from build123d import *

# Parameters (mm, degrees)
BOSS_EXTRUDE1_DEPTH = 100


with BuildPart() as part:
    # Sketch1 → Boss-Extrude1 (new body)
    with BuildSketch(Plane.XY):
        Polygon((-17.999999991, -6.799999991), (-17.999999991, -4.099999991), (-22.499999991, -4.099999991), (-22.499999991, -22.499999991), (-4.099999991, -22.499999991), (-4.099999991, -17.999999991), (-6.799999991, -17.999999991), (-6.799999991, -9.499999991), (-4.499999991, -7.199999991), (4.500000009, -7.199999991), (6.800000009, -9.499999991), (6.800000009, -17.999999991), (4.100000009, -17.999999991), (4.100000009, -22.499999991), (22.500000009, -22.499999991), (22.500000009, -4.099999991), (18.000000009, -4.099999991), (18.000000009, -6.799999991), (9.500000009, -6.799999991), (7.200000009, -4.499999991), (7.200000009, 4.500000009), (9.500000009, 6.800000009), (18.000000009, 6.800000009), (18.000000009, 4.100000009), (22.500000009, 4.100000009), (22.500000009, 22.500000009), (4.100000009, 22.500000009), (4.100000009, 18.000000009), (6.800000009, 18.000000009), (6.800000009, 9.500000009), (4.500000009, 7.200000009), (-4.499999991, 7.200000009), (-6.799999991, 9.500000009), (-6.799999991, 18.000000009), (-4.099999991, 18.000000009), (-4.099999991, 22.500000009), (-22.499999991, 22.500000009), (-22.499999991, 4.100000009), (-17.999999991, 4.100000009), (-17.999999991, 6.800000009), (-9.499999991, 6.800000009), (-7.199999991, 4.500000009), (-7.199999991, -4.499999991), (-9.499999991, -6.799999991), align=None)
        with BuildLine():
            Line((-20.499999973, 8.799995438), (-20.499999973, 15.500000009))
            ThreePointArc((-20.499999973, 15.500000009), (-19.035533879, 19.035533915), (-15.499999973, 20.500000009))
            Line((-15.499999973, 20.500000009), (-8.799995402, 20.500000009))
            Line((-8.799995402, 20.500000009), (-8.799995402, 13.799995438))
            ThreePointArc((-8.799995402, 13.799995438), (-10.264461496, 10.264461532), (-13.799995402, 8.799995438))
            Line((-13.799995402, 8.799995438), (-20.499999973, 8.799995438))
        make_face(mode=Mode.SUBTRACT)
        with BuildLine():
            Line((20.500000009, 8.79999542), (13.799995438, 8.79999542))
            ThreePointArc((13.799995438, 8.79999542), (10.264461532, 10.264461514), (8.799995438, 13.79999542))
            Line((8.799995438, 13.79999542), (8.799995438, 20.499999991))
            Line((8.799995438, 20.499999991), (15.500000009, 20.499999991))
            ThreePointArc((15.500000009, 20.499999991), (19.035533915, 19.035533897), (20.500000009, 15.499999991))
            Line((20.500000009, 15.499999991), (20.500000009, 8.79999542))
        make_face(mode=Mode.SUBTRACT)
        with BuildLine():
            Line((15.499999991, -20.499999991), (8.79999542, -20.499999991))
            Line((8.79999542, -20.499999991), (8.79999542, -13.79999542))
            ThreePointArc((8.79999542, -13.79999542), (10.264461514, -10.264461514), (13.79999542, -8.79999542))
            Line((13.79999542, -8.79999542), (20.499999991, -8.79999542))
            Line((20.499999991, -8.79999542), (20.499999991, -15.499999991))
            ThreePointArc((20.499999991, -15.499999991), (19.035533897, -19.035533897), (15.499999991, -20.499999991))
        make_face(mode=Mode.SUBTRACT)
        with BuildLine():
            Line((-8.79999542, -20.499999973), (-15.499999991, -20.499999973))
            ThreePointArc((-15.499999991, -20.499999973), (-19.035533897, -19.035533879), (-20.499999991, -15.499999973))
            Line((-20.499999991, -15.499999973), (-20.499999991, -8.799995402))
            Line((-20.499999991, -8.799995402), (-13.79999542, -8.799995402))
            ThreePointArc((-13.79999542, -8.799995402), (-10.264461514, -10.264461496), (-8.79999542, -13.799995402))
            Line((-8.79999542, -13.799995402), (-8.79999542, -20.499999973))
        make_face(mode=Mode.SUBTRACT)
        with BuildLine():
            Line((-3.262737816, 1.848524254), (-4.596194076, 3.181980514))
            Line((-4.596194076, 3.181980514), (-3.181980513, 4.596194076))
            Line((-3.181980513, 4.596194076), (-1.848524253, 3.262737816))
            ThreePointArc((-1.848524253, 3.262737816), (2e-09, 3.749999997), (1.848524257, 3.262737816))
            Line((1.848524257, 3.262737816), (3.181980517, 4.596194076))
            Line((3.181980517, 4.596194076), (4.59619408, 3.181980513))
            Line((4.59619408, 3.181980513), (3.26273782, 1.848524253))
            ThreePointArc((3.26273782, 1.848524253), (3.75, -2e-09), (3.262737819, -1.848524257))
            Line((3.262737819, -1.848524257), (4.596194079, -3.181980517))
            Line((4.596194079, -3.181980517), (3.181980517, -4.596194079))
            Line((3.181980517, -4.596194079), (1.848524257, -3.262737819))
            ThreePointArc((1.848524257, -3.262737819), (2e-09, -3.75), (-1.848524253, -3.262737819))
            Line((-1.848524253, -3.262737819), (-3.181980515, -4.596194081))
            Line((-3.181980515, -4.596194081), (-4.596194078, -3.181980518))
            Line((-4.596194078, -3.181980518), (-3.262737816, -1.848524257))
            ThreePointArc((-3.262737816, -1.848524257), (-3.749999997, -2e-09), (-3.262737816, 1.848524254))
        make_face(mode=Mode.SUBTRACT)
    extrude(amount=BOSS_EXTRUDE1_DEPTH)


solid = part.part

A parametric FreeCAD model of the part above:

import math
import FreeCAD as App
import Part
import Sketcher
Q = App.Units.Quantity

doc = App.newDocument("Part")
params = doc.addObject("Spreadsheet::Sheet", "Params")
for row, (alias, value) in enumerate([
    ("sketch1_radius", "5 mm"),
    ("sketch1_width", "9 mm"),
    ("sketch1_radius2", "3.75 mm"),
    ("sketch1_length", "2 mm"),
    ("sketch1_width2", "4.5 mm"),
    ("pad1_length", "100 mm"),
], start=1):
    params.set(f"A{row}", alias)
    params.set(f"B{row}", "=" + value)
    params.setAlias(f"B{row}", alias)

body = doc.addObject("PartDesign::Body", "Body")

sketch1 = body.newObject("Sketcher::SketchObject", "Sketch")
sketch1.AttachmentSupport = (doc.getObject("XY_Plane"), [""])
sketch1.MapMode = "FlatFace"
sketch1.addGeometry([
    Part.LineSegment(App.Vector(-18, -6.8, 0), App.Vector(-18, -4.1, 0)),
    Part.LineSegment(App.Vector(-18, -4.1, 0), App.Vector(-22.5, -4.1, 0)),
    Part.LineSegment(App.Vector(-22.5, -4.1, 0), App.Vector(-22.5, -22.5, 0)),
    Part.LineSegment(App.Vector(-22.5, -22.5, 0), App.Vector(-4.1, -22.5, 0)),
    Part.LineSegment(App.Vector(-4.1, -22.5, 0), App.Vector(-4.1, -18, 0)),
    Part.LineSegment(App.Vector(-4.1, -18, 0), App.Vector(-6.8, -18, 0)),
    Part.LineSegment(App.Vector(-6.8, -18, 0), App.Vector(-6.8, -9.5, 0)),
    Part.LineSegment(App.Vector(-6.8, -9.5, 0), App.Vector(-4.5, -7.2, 0)),
    Part.LineSegment(App.Vector(-4.5, -7.2, 0), App.Vector(4.5, -7.2, 0)),
    Part.LineSegment(App.Vector(4.5, -7.2, 0), App.Vector(6.8, -9.5, 0)),
    Part.LineSegment(App.Vector(6.8, -9.5, 0), App.Vector(6.8, -18, 0)),
    Part.LineSegment(App.Vector(6.8, -18, 0), App.Vector(4.1, -18, 0)),
    Part.LineSegment(App.Vector(4.1, -18, 0), App.Vector(4.1, -22.5, 0)),
    Part.LineSegment(App.Vector(4.1, -22.5, 0), App.Vector(22.5, -22.5, 0)),
    Part.LineSegment(App.Vector(22.5, -22.5, 0), App.Vector(22.5, -4.1, 0)),
    Part.LineSegment(App.Vector(22.5, -4.1, 0), App.Vector(18, -4.1, 0)),
    Part.LineSegment(App.Vector(18, -4.1, 0), App.Vector(18, -6.8, 0)),
    Part.LineSegment(App.Vector(18, -6.8, 0), App.Vector(9.5, -6.8, 0)),
    Part.LineSegment(App.Vector(9.5, -6.8, 0), App.Vector(7.2, -4.5, 0)),
    Part.LineSegment(App.Vector(7.2, -4.5, 0), App.Vector(7.2, 4.5, 0)),
    Part.LineSegment(App.Vector(7.2, 4.5, 0), App.Vector(9.5, 6.8, 0)),
    Part.LineSegment(App.Vector(9.5, 6.8, 0), App.Vector(18, 6.8, 0)),
    Part.LineSegment(App.Vector(18, 6.8, 0), App.Vector(18, 4.1, 0)),
    Part.LineSegment(App.Vector(18, 4.1, 0), App.Vector(22.5, 4.1, 0)),
    Part.LineSegment(App.Vector(22.5, 4.1, 0), App.Vector(22.5, 22.5, 0)),
    Part.LineSegment(App.Vector(22.5, 22.5, 0), App.Vector(4.1, 22.5, 0)),
    Part.LineSegment(App.Vector(4.1, 22.5, 0), App.Vector(4.1, 18, 0)),
    Part.LineSegment(App.Vector(4.1, 18, 0), App.Vector(6.8, 18, 0)),
    Part.LineSegment(App.Vector(6.8, 18, 0), App.Vector(6.8, 9.5, 0)),
    Part.LineSegment(App.Vector(6.8, 9.5, 0), App.Vector(4.5, 7.2, 0)),
    Part.LineSegment(App.Vector(4.5, 7.2, 0), App.Vector(-4.5, 7.2, 0)),
    Part.LineSegment(App.Vector(-4.5, 7.2, 0), App.Vector(-6.8, 9.5, 0)),
    Part.LineSegment(App.Vector(-6.8, 9.5, 0), App.Vector(-6.8, 18, 0)),
    Part.LineSegment(App.Vector(-6.8, 18, 0), App.Vector(-4.1, 18, 0)),
    Part.LineSegment(App.Vector(-4.1, 18, 0), App.Vector(-4.1, 22.5, 0)),
    Part.LineSegment(App.Vector(-4.1, 22.5, 0), App.Vector(-22.5, 22.5, 0)),
    Part.LineSegment(App.Vector(-22.5, 22.5, 0), App.Vector(-22.5, 4.1, 0)),
    Part.LineSegment(App.Vector(-22.5, 4.1, 0), App.Vector(-18, 4.1, 0)),
    Part.LineSegment(App.Vector(-18, 4.1, 0), App.Vector(-18, 6.8, 0)),
    Part.LineSegment(App.Vector(-18, 6.8, 0), App.Vector(-9.5, 6.8, 0)),
    Part.LineSegment(App.Vector(-9.5, 6.8, 0), App.Vector(-7.2, 4.5, 0)),
    Part.LineSegment(App.Vector(-7.2, 4.5, 0), App.Vector(-7.2, -4.5, 0)),
    Part.LineSegment(App.Vector(-7.2, -4.5, 0), App.Vector(-9.5, -6.8, 0)),
    Part.LineSegment(App.Vector(-9.5, -6.8, 0), App.Vector(-18, -6.8, 0)),
    Part.LineSegment(App.Vector(-8.799995, -13.799995, 0), App.Vector(-8.799995, -20.5, 0)),
    Part.LineSegment(App.Vector(-8.799995, -20.5, 0), App.Vector(-15.5, -20.5, 0)),
    Part.ArcOfCircle(Part.Circle(App.Vector(-15.5, -15.5, 0), App.Vector(0, 0, 1), 5), math.radians(180), math.radians(270)),
    Part.LineSegment(App.Vector(-20.5, -15.5, 0), App.Vector(-20.5, -8.799995, 0)),
    Part.LineSegment(App.Vector(-20.5, -8.799995, 0), App.Vector(-13.799995, -8.799995, 0)),
    Part.ArcOfCircle(Part.Circle(App.Vector(-13.799995, -13.799995, 0), App.Vector(0, 0, 1), 5), math.radians(0), math.radians(90)),
    Part.ArcOfCircle(Part.Circle(App.Vector(0, 0, 0), App.Vector(0, 0, 1), 3.75), math.radians(150.46601), math.radians(209.53399)),
    Part.LineSegment(App.Vector(-3.262738, 1.848524, 0), App.Vector(-4.596194, 3.181981, 0)),
    Part.LineSegment(App.Vector(-4.596194, 3.181981, 0), App.Vector(-3.181981, 4.596194, 0)),
    Part.LineSegment(App.Vector(-3.181981, 4.596194, 0), App.Vector(-1.848524, 3.262738, 0)),
    Part.ArcOfCircle(Part.Circle(App.Vector(0, 0, 0), App.Vector(0, 0, 1), 3.75), math.radians(60.46601), math.radians(119.53399)),
    Part.LineSegment(App.Vector(1.848524, 3.262738, 0), App.Vector(3.181981, 4.596194, 0)),
    Part.LineSegment(App.Vector(3.181981, 4.596194, 0), App.Vector(4.596194, 3.181981, 0)),
    Part.LineSegment(App.Vector(4.596194, 3.181981, 0), App.Vector(3.262738, 1.848524, 0)),
    Part.ArcOfCircle(Part.Circle(App.Vector(0, 0, 0), App.Vector(0, 0, 1), 3.75), math.radians(-29.53399), math.radians(29.53399)),
    Part.LineSegment(App.Vector(3.262738, -1.848524, 0), App.Vector(4.596194, -3.181981, 0)),
    Part.LineSegment(App.Vector(4.596194, -3.181981, 0), App.Vector(3.181981, -4.596194, 0)),
    Part.LineSegment(App.Vector(3.181981, -4.596194, 0), App.Vector(1.848524, -3.262738, 0)),
    Part.ArcOfCircle(Part.Circle(App.Vector(0, 0, 0), App.Vector(0, 0, 1), 3.75), math.radians(-119.53399), math.radians(-60.46601)),
    Part.LineSegment(App.Vector(-1.848524, -3.262738, 0), App.Vector(-3.181981, -4.596194, 0)),
    Part.LineSegment(App.Vector(-3.181981, -4.596194, 0), App.Vector(-4.596194, -3.181981, 0)),
    Part.LineSegment(App.Vector(-4.596194, -3.181981, 0), App.Vector(-3.262738, -1.848524, 0)),
    Part.ArcOfCircle(Part.Circle(App.Vector(15.5, -15.5, 0), App.Vector(0, 0, 1), 5), math.radians(-90), math.radians(0)),
    Part.LineSegment(App.Vector(15.5, -20.5, 0), App.Vector(8.799995, -20.5, 0)),
    Part.LineSegment(App.Vector(8.799995, -20.5, 0), App.Vector(8.799995, -13.799995, 0)),
    Part.ArcOfCircle(Part.Circle(App.Vector(13.799995, -13.799995, 0), App.Vector(0, 0, 1), 5), math.radians(90), math.radians(180)),
    Part.LineSegment(App.Vector(13.799995, -8.799995, 0), App.Vector(20.5, -8.799995, 0)),
    Part.LineSegment(App.Vector(20.5, -8.799995, 0), App.Vector(20.5, -15.5, 0)),
    Part.LineSegment(App.Vector(-13.799995, 8.799995, 0), App.Vector(-20.5, 8.799995, 0)),
    Part.LineSegment(App.Vector(-20.5, 8.799995, 0), App.Vector(-20.5, 15.5, 0)),
    Part.ArcOfCircle(Part.Circle(App.Vector(-15.5, 15.5, 0), App.Vector(0, 0, 1), 5), math.radians(90), math.radians(180)),
    Part.LineSegment(App.Vector(-15.5, 20.5, 0), App.Vector(-8.799995, 20.5, 0)),
    Part.LineSegment(App.Vector(-8.799995, 20.5, 0), App.Vector(-8.799995, 13.799995, 0)),
    Part.ArcOfCircle(Part.Circle(App.Vector(-13.799995, 13.799995, 0), App.Vector(0, 0, 1), 5), math.radians(-90), math.radians(0)),
    Part.LineSegment(App.Vector(20.5, 15.5, 0), App.Vector(20.5, 8.799995, 0)),
    Part.LineSegment(App.Vector(20.5, 8.799995, 0), App.Vector(13.799995, 8.799995, 0)),
    Part.ArcOfCircle(Part.Circle(App.Vector(13.799995, 13.799995, 0), App.Vector(0, 0, 1), 5), math.radians(180), math.radians(270)),
    Part.LineSegment(App.Vector(8.799995, 13.799995, 0), App.Vector(8.799995, 20.5, 0)),
    Part.LineSegment(App.Vector(8.799995, 20.5, 0), App.Vector(15.5, 20.5, 0)),
    Part.ArcOfCircle(Part.Circle(App.Vector(15.5, 15.5, 0), App.Vector(0, 0, 1), 5), math.radians(0), math.radians(90)),
], False)
sketch1.addConstraint([
    Sketcher.Constraint("Coincident", 0, 2, 1, 1),
    Sketcher.Constraint("Coincident", 1, 2, 2, 1),
    Sketcher.Constraint("Coincident", 2, 2, 3, 1),
    Sketcher.Constraint("Coincident", 3, 2, 4, 1),
    Sketcher.Constraint("Coincident", 4, 2, 5, 1),
    Sketcher.Constraint("Coincident", 5, 2, 6, 1),
    Sketcher.Constraint("Coincident", 6, 2, 7, 1),
    Sketcher.Constraint("Coincident", 7, 2, 8, 1),
    Sketcher.Constraint("Coincident", 8, 2, 9, 1),
    Sketcher.Constraint("Coincident", 9, 2, 10, 1),
    Sketcher.Constraint("Coincident", 10, 2, 11, 1),
    Sketcher.Constraint("Coincident", 11, 2, 12, 1),
    Sketcher.Constraint("Coincident", 12, 2, 13, 1),
    Sketcher.Constraint("Coincident", 13, 2, 14, 1),
    Sketcher.Constraint("Coincident", 14, 2, 15, 1),
    Sketcher.Constraint("Coincident", 15, 2, 16, 1),
    Sketcher.Constraint("Coincident", 16, 2, 17, 1),
    Sketcher.Constraint("Coincident", 17, 2, 18, 1),
    Sketcher.Constraint("Coincident", 18, 2, 19, 1),
    Sketcher.Constraint("Coincident", 19, 2, 20, 1),
    Sketcher.Constraint("Coincident", 20, 2, 21, 1),
    Sketcher.Constraint("Coincident", 21, 2, 22, 1),
    Sketcher.Constraint("Coincident", 22, 2, 23, 1),
    Sketcher.Constraint("Coincident", 23, 2, 24, 1),
    Sketcher.Constraint("Coincident", 24, 2, 25, 1),
    Sketcher.Constraint("Coincident", 25, 2, 26, 1),
    Sketcher.Constraint("Coincident", 26, 2, 27, 1),
    Sketcher.Constraint("Coincident", 27, 2, 28, 1),
    Sketcher.Constraint("Coincident", 28, 2, 29, 1),
    Sketcher.Constraint("Coincident", 29, 2, 30, 1),
    Sketcher.Constraint("Coincident", 30, 2, 31, 1),
    Sketcher.Constraint("Coincident", 31, 2, 32, 1),
    Sketcher.Constraint("Coincident", 32, 2, 33, 1),
    Sketcher.Constraint("Coincident", 33, 2, 34, 1),
    Sketcher.Constraint("Coincident", 34, 2, 35, 1),
    Sketcher.Constraint("Coincident", 35, 2, 36, 1),
    Sketcher.Constraint("Coincident", 36, 2, 37, 1),
    Sketcher.Constraint("Coincident", 37, 2, 38, 1),
    Sketcher.Constraint("Coincident", 38, 2, 39, 1),
    Sketcher.Constraint("Coincident", 39, 2, 40, 1),
    Sketcher.Constraint("Coincident", 40, 2, 41, 1),
    Sketcher.Constraint("Coincident", 41, 2, 42, 1),
    Sketcher.Constraint("Coincident", 42, 2, 43, 1),
    Sketcher.Constraint("Coincident", 43, 2, 0, 1),
    Sketcher.Constraint("Coincident", 44, 2, 45, 1),
    Sketcher.Constraint("Tangent", 45, 2, 46, 2),
    Sketcher.Constraint("Tangent", 46, 1, 47, 1),
    Sketcher.Constraint("Coincident", 47, 2, 48, 1),
    Sketcher.Constraint("Tangent", 48, 2, 49, 2),
    Sketcher.Constraint("Tangent", 49, 1, 44, 1),
    Sketcher.Constraint("Coincident", 50, 1, 51, 1),
    Sketcher.Constraint("Coincident", 51, 2, 52, 1),
    Sketcher.Constraint("Coincident", 52, 2, 53, 1),
    Sketcher.Constraint("Coincident", 53, 2, 54, 2),
    Sketcher.Constraint("Coincident", 54, 1, 55, 1),
    Sketcher.Constraint("Coincident", 55, 2, 56, 1),
    Sketcher.Constraint("Coincident", 56, 2, 57, 1),
    Sketcher.Constraint("Coincident", 57, 2, 58, 2),
    Sketcher.Constraint("Coincident", 58, 1, 59, 1),
    Sketcher.Constraint("Coincident", 59, 2, 60, 1),
    Sketcher.Constraint("Coincident", 60, 2, 61, 1),
    Sketcher.Constraint("Coincident", 61, 2, 62, 2),
    Sketcher.Constraint("Coincident", 62, 1, 63, 1),
    Sketcher.Constraint("Coincident", 63, 2, 64, 1),
    Sketcher.Constraint("Coincident", 64, 2, 65, 1),
    Sketcher.Constraint("Coincident", 65, 2, 50, 2),
    Sketcher.Constraint("Tangent", 66, 1, 67, 1),
    Sketcher.Constraint("Coincident", 67, 2, 68, 1),
    Sketcher.Constraint("Tangent", 68, 2, 69, 2),
    Sketcher.Constraint("Tangent", 69, 1, 70, 1),
    Sketcher.Constraint("Coincident", 70, 2, 71, 1),
    Sketcher.Constraint("Tangent", 71, 2, 66, 2),
    Sketcher.Constraint("Coincident", 72, 2, 73, 1),
    Sketcher.Constraint("Tangent", 73, 2, 74, 2),
    Sketcher.Constraint("Tangent", 74, 1, 75, 1),
    Sketcher.Constraint("Coincident", 75, 2, 76, 1),
    Sketcher.Constraint("Tangent", 76, 2, 77, 2),
    Sketcher.Constraint("Tangent", 77, 1, 72, 1),
    Sketcher.Constraint("Coincident", 78, 2, 79, 1),
    Sketcher.Constraint("Tangent", 79, 2, 80, 2),
    Sketcher.Constraint("Tangent", 80, 1, 81, 1),
    Sketcher.Constraint("Coincident", 81, 2, 82, 1),
    Sketcher.Constraint("Tangent", 82, 2, 83, 2),
    Sketcher.Constraint("Tangent", 83, 1, 78, 1),
    Sketcher.Constraint("Vertical", 0),
    Sketcher.Constraint("Horizontal", 1),
    Sketcher.Constraint("Vertical", 2),
    Sketcher.Constraint("Horizontal", 3),
    Sketcher.Constraint("Vertical", 4),
    Sketcher.Constraint("Horizontal", 5),
    Sketcher.Constraint("Vertical", 6),
    Sketcher.Constraint("Horizontal", 8),
    Sketcher.Constraint("Vertical", 10),
    Sketcher.Constraint("Horizontal", 11),
    Sketcher.Constraint("Vertical", 12),
    Sketcher.Constraint("Horizontal", 13),
    Sketcher.Constraint("Vertical", 14),
    Sketcher.Constraint("Horizontal", 15),
    Sketcher.Constraint("Vertical", 16),
    Sketcher.Constraint("Horizontal", 17),
    Sketcher.Constraint("Vertical", 19),
    Sketcher.Constraint("Horizontal", 21),
    Sketcher.Constraint("Vertical", 22),
    Sketcher.Constraint("Horizontal", 23),
    Sketcher.Constraint("Vertical", 24),
    Sketcher.Constraint("Horizontal", 25),
    Sketcher.Constraint("Vertical", 26),
    Sketcher.Constraint("Horizontal", 27),
    Sketcher.Constraint("Vertical", 28),
    Sketcher.Constraint("Horizontal", 30),
    Sketcher.Constraint("Vertical", 32),
    Sketcher.Constraint("Horizontal", 33),
    Sketcher.Constraint("Vertical", 34),
    Sketcher.Constraint("Horizontal", 35),
    Sketcher.Constraint("Vertical", 36),
    Sketcher.Constraint("Horizontal", 37),
    Sketcher.Constraint("Vertical", 38),
    Sketcher.Constraint("Horizontal", 39),
    Sketcher.Constraint("Vertical", 41),
    Sketcher.Constraint("Horizontal", 43),
    Sketcher.Constraint("Vertical", 44),
    Sketcher.Constraint("Horizontal", 45),
    Sketcher.Constraint("Vertical", 47),
    Sketcher.Constraint("Horizontal", 48),
    Sketcher.Constraint("Horizontal", 67),
    Sketcher.Constraint("Vertical", 68),
    Sketcher.Constraint("Horizontal", 70),
    Sketcher.Constraint("Vertical", 71),
    Sketcher.Constraint("Horizontal", 72),
    Sketcher.Constraint("Vertical", 73),
    Sketcher.Constraint("Horizontal", 75),
    Sketcher.Constraint("Vertical", 76),
    Sketcher.Constraint("Vertical", 78),
    Sketcher.Constraint("Horizontal", 79),
    Sketcher.Constraint("Vertical", 81),
    Sketcher.Constraint("Horizontal", 82),
    Sketcher.Constraint("Coincident", 50, 3, -1, 1),
    Sketcher.Constraint("Coincident", 54, 3, -1, 1),
    Sketcher.Constraint("Coincident", 58, 3, -1, 1),
    Sketcher.Constraint("Coincident", 62, 3, -1, 1),
    Sketcher.Constraint("Equal", 46, 49),
    Sketcher.Constraint("Equal", 50, 54),
    Sketcher.Constraint("Equal", 54, 58),
    Sketcher.Constraint("Equal", 58, 62),
    Sketcher.Constraint("Equal", 49, 66),
    Sketcher.Constraint("Equal", 66, 69),
    Sketcher.Constraint("Equal", 69, 74),
    Sketcher.Constraint("Equal", 74, 77),
    Sketcher.Constraint("Equal", 77, 80),
    Sketcher.Constraint("Equal", 80, 83),
    Sketcher.Constraint("Symmetric", 66, 3, 74, 3, -1, 1),
    Sketcher.Constraint("Symmetric", 69, 3, 77, 3, -1, 1),
    Sketcher.Constraint("Symmetric", 49, 3, 80, 3, -1, 1),
    Sketcher.Constraint("Symmetric", 46, 3, 83, 3, -1, 1),
    Sketcher.Constraint("Symmetric", 0, 2, 22, 2, -1, 1),
    Sketcher.Constraint("Symmetric", 2, 2, 24, 2, -1, 1),
    Sketcher.Constraint("Symmetric", 4, 2, 26, 2, -1, 1),
    Sketcher.Constraint("Symmetric", 6, 2, 28, 2, -1, 1),
    Sketcher.Constraint("Symmetric", 7, 2, 29, 2, -1, 1),
    Sketcher.Constraint("Symmetric", 9, 2, 31, 2, -1, 1),
    Sketcher.Constraint("Symmetric", 11, 2, 33, 2, -1, 1),
    Sketcher.Constraint("Symmetric", 13, 2, 35, 2, -1, 1),
    Sketcher.Constraint("Symmetric", 15, 2, 37, 2, -1, 1),
    Sketcher.Constraint("Symmetric", 17, 2, 39, 2, -1, 1),
    Sketcher.Constraint("Symmetric", 18, 2, 40, 2, -1, 1),
    Sketcher.Constraint("Symmetric", 20, 2, 42, 2, -1, 1),
    Sketcher.Constraint("Symmetric", 51, 2, 59, 2, -1, 1),
    Sketcher.Constraint("Symmetric", 52, 2, 60, 2, -1, 1),
    Sketcher.Constraint("Symmetric", 55, 2, 63, 2, -1, 1),
    Sketcher.Constraint("Symmetric", 56, 2, 64, 2, -1, 1),
    Sketcher.Constraint("Symmetric", 46, 3, 66, 3, -2),
    Sketcher.Constraint("Symmetric", 49, 3, 69, 3, -2),
    Sketcher.Constraint("Symmetric", 6, 2, 9, 2, -2),
    Sketcher.Constraint("Symmetric", 4, 2, 11, 2, -2),
    Sketcher.Constraint("Symmetric", 2, 2, 13, 2, -2),
    Sketcher.Constraint("Symmetric", 0, 2, 15, 2, -2),
    Sketcher.Constraint("Symmetric", 20, 2, 39, 2, -2),
    Sketcher.Constraint("Symmetric", 52, 2, 55, 2, -2),
    Sketcher.Constraint("Symmetric", 51, 2, 56, 2, -2),
    Sketcher.Constraint("Perpendicular", 7, 9),
    Sketcher.Constraint("Parallel", 9, 18),
    Sketcher.Constraint("Perpendicular", 18, 20),
    Sketcher.Constraint("Perpendicular", 29, 31),
    Sketcher.Constraint("Perpendicular", 40, 42),
    Sketcher.Constraint("Perpendicular", 42, 51),
    Sketcher.Constraint("Perpendicular", 51, 52),
    Sketcher.Constraint("Perpendicular", 52, 53),
    Sketcher.Constraint("Perpendicular", 53, 55),
    Sketcher.Constraint("Perpendicular", 55, 56),
    Sketcher.Constraint("Perpendicular", 56, 57),
    Sketcher.Constraint("Perpendicular", 57, 59),
    Sketcher.Constraint("Perpendicular", 60, 61),
    Sketcher.Constraint("Perpendicular", 61, 63),
    Sketcher.Constraint("Perpendicular", 64, 65),
    Sketcher.Constraint("Equal", 33, 0),
    Sketcher.Constraint("Equal", 35, 2),
    Sketcher.Constraint("Equal", 37, 4),
    Sketcher.Constraint("Equal", 43, 6),
    Sketcher.Constraint("Equal", 30, 19),
    Sketcher.Constraint("Equal", 82, 44),
    Sketcher.Constraint("Equal", 9, 18),
    Sketcher.Constraint("Equal", 51, 53),
    Sketcher.Constraint("Radius", 46, Q("5 mm")),
    Sketcher.Constraint("DistanceX", 8, 1, 8, 2, Q("9 mm")),
    Sketcher.Constraint("Radius", 50, Q("3.75 mm")),
    Sketcher.Constraint("Distance", 52, Q("2 mm")),
    Sketcher.Constraint("DistanceX", 1, 2, 1, 1, Q("4.5 mm")),
    Sketcher.Constraint("DistanceX", 3, 1, 3, 2, Q("18.4 mm")),
    Sketcher.Constraint("DistanceX", 5, 2, 5, 1, Q("2.7 mm")),
    Sketcher.Constraint("DistanceX", 17, 2, 17, 1, Q("8.5 mm")),
    Sketcher.Constraint("DistanceX", 0, 2, -1, 1, Q("18 mm")),
    Sketcher.Constraint("DistanceX", 46, 3, -1, 1, Q("15.5 mm")),
    Sketcher.Constraint("DistanceY", 46, 3, -1, 1, Q("15.5 mm")),
    Sketcher.Constraint("Distance", 51, Q("1.885792 mm")),
    Sketcher.Constraint("DistanceX", 45, 2, 45, 1, Q("6.700005 mm")),
])
sketch1.setExpression("Constraints[202]", "Params.sketch1_radius")
sketch1.setExpression("Constraints[203]", "Params.sketch1_width")
sketch1.setExpression("Constraints[204]", "Params.sketch1_radius2")
sketch1.setExpression("Constraints[205]", "Params.sketch1_length")
sketch1.setExpression("Constraints[206]", "Params.sketch1_width2")
pad1 = body.newObject("PartDesign::Pad", "Pad")
pad1.Profile = sketch1
pad1.setExpression("Length", "Params.pad1_length")

doc.recompute()
